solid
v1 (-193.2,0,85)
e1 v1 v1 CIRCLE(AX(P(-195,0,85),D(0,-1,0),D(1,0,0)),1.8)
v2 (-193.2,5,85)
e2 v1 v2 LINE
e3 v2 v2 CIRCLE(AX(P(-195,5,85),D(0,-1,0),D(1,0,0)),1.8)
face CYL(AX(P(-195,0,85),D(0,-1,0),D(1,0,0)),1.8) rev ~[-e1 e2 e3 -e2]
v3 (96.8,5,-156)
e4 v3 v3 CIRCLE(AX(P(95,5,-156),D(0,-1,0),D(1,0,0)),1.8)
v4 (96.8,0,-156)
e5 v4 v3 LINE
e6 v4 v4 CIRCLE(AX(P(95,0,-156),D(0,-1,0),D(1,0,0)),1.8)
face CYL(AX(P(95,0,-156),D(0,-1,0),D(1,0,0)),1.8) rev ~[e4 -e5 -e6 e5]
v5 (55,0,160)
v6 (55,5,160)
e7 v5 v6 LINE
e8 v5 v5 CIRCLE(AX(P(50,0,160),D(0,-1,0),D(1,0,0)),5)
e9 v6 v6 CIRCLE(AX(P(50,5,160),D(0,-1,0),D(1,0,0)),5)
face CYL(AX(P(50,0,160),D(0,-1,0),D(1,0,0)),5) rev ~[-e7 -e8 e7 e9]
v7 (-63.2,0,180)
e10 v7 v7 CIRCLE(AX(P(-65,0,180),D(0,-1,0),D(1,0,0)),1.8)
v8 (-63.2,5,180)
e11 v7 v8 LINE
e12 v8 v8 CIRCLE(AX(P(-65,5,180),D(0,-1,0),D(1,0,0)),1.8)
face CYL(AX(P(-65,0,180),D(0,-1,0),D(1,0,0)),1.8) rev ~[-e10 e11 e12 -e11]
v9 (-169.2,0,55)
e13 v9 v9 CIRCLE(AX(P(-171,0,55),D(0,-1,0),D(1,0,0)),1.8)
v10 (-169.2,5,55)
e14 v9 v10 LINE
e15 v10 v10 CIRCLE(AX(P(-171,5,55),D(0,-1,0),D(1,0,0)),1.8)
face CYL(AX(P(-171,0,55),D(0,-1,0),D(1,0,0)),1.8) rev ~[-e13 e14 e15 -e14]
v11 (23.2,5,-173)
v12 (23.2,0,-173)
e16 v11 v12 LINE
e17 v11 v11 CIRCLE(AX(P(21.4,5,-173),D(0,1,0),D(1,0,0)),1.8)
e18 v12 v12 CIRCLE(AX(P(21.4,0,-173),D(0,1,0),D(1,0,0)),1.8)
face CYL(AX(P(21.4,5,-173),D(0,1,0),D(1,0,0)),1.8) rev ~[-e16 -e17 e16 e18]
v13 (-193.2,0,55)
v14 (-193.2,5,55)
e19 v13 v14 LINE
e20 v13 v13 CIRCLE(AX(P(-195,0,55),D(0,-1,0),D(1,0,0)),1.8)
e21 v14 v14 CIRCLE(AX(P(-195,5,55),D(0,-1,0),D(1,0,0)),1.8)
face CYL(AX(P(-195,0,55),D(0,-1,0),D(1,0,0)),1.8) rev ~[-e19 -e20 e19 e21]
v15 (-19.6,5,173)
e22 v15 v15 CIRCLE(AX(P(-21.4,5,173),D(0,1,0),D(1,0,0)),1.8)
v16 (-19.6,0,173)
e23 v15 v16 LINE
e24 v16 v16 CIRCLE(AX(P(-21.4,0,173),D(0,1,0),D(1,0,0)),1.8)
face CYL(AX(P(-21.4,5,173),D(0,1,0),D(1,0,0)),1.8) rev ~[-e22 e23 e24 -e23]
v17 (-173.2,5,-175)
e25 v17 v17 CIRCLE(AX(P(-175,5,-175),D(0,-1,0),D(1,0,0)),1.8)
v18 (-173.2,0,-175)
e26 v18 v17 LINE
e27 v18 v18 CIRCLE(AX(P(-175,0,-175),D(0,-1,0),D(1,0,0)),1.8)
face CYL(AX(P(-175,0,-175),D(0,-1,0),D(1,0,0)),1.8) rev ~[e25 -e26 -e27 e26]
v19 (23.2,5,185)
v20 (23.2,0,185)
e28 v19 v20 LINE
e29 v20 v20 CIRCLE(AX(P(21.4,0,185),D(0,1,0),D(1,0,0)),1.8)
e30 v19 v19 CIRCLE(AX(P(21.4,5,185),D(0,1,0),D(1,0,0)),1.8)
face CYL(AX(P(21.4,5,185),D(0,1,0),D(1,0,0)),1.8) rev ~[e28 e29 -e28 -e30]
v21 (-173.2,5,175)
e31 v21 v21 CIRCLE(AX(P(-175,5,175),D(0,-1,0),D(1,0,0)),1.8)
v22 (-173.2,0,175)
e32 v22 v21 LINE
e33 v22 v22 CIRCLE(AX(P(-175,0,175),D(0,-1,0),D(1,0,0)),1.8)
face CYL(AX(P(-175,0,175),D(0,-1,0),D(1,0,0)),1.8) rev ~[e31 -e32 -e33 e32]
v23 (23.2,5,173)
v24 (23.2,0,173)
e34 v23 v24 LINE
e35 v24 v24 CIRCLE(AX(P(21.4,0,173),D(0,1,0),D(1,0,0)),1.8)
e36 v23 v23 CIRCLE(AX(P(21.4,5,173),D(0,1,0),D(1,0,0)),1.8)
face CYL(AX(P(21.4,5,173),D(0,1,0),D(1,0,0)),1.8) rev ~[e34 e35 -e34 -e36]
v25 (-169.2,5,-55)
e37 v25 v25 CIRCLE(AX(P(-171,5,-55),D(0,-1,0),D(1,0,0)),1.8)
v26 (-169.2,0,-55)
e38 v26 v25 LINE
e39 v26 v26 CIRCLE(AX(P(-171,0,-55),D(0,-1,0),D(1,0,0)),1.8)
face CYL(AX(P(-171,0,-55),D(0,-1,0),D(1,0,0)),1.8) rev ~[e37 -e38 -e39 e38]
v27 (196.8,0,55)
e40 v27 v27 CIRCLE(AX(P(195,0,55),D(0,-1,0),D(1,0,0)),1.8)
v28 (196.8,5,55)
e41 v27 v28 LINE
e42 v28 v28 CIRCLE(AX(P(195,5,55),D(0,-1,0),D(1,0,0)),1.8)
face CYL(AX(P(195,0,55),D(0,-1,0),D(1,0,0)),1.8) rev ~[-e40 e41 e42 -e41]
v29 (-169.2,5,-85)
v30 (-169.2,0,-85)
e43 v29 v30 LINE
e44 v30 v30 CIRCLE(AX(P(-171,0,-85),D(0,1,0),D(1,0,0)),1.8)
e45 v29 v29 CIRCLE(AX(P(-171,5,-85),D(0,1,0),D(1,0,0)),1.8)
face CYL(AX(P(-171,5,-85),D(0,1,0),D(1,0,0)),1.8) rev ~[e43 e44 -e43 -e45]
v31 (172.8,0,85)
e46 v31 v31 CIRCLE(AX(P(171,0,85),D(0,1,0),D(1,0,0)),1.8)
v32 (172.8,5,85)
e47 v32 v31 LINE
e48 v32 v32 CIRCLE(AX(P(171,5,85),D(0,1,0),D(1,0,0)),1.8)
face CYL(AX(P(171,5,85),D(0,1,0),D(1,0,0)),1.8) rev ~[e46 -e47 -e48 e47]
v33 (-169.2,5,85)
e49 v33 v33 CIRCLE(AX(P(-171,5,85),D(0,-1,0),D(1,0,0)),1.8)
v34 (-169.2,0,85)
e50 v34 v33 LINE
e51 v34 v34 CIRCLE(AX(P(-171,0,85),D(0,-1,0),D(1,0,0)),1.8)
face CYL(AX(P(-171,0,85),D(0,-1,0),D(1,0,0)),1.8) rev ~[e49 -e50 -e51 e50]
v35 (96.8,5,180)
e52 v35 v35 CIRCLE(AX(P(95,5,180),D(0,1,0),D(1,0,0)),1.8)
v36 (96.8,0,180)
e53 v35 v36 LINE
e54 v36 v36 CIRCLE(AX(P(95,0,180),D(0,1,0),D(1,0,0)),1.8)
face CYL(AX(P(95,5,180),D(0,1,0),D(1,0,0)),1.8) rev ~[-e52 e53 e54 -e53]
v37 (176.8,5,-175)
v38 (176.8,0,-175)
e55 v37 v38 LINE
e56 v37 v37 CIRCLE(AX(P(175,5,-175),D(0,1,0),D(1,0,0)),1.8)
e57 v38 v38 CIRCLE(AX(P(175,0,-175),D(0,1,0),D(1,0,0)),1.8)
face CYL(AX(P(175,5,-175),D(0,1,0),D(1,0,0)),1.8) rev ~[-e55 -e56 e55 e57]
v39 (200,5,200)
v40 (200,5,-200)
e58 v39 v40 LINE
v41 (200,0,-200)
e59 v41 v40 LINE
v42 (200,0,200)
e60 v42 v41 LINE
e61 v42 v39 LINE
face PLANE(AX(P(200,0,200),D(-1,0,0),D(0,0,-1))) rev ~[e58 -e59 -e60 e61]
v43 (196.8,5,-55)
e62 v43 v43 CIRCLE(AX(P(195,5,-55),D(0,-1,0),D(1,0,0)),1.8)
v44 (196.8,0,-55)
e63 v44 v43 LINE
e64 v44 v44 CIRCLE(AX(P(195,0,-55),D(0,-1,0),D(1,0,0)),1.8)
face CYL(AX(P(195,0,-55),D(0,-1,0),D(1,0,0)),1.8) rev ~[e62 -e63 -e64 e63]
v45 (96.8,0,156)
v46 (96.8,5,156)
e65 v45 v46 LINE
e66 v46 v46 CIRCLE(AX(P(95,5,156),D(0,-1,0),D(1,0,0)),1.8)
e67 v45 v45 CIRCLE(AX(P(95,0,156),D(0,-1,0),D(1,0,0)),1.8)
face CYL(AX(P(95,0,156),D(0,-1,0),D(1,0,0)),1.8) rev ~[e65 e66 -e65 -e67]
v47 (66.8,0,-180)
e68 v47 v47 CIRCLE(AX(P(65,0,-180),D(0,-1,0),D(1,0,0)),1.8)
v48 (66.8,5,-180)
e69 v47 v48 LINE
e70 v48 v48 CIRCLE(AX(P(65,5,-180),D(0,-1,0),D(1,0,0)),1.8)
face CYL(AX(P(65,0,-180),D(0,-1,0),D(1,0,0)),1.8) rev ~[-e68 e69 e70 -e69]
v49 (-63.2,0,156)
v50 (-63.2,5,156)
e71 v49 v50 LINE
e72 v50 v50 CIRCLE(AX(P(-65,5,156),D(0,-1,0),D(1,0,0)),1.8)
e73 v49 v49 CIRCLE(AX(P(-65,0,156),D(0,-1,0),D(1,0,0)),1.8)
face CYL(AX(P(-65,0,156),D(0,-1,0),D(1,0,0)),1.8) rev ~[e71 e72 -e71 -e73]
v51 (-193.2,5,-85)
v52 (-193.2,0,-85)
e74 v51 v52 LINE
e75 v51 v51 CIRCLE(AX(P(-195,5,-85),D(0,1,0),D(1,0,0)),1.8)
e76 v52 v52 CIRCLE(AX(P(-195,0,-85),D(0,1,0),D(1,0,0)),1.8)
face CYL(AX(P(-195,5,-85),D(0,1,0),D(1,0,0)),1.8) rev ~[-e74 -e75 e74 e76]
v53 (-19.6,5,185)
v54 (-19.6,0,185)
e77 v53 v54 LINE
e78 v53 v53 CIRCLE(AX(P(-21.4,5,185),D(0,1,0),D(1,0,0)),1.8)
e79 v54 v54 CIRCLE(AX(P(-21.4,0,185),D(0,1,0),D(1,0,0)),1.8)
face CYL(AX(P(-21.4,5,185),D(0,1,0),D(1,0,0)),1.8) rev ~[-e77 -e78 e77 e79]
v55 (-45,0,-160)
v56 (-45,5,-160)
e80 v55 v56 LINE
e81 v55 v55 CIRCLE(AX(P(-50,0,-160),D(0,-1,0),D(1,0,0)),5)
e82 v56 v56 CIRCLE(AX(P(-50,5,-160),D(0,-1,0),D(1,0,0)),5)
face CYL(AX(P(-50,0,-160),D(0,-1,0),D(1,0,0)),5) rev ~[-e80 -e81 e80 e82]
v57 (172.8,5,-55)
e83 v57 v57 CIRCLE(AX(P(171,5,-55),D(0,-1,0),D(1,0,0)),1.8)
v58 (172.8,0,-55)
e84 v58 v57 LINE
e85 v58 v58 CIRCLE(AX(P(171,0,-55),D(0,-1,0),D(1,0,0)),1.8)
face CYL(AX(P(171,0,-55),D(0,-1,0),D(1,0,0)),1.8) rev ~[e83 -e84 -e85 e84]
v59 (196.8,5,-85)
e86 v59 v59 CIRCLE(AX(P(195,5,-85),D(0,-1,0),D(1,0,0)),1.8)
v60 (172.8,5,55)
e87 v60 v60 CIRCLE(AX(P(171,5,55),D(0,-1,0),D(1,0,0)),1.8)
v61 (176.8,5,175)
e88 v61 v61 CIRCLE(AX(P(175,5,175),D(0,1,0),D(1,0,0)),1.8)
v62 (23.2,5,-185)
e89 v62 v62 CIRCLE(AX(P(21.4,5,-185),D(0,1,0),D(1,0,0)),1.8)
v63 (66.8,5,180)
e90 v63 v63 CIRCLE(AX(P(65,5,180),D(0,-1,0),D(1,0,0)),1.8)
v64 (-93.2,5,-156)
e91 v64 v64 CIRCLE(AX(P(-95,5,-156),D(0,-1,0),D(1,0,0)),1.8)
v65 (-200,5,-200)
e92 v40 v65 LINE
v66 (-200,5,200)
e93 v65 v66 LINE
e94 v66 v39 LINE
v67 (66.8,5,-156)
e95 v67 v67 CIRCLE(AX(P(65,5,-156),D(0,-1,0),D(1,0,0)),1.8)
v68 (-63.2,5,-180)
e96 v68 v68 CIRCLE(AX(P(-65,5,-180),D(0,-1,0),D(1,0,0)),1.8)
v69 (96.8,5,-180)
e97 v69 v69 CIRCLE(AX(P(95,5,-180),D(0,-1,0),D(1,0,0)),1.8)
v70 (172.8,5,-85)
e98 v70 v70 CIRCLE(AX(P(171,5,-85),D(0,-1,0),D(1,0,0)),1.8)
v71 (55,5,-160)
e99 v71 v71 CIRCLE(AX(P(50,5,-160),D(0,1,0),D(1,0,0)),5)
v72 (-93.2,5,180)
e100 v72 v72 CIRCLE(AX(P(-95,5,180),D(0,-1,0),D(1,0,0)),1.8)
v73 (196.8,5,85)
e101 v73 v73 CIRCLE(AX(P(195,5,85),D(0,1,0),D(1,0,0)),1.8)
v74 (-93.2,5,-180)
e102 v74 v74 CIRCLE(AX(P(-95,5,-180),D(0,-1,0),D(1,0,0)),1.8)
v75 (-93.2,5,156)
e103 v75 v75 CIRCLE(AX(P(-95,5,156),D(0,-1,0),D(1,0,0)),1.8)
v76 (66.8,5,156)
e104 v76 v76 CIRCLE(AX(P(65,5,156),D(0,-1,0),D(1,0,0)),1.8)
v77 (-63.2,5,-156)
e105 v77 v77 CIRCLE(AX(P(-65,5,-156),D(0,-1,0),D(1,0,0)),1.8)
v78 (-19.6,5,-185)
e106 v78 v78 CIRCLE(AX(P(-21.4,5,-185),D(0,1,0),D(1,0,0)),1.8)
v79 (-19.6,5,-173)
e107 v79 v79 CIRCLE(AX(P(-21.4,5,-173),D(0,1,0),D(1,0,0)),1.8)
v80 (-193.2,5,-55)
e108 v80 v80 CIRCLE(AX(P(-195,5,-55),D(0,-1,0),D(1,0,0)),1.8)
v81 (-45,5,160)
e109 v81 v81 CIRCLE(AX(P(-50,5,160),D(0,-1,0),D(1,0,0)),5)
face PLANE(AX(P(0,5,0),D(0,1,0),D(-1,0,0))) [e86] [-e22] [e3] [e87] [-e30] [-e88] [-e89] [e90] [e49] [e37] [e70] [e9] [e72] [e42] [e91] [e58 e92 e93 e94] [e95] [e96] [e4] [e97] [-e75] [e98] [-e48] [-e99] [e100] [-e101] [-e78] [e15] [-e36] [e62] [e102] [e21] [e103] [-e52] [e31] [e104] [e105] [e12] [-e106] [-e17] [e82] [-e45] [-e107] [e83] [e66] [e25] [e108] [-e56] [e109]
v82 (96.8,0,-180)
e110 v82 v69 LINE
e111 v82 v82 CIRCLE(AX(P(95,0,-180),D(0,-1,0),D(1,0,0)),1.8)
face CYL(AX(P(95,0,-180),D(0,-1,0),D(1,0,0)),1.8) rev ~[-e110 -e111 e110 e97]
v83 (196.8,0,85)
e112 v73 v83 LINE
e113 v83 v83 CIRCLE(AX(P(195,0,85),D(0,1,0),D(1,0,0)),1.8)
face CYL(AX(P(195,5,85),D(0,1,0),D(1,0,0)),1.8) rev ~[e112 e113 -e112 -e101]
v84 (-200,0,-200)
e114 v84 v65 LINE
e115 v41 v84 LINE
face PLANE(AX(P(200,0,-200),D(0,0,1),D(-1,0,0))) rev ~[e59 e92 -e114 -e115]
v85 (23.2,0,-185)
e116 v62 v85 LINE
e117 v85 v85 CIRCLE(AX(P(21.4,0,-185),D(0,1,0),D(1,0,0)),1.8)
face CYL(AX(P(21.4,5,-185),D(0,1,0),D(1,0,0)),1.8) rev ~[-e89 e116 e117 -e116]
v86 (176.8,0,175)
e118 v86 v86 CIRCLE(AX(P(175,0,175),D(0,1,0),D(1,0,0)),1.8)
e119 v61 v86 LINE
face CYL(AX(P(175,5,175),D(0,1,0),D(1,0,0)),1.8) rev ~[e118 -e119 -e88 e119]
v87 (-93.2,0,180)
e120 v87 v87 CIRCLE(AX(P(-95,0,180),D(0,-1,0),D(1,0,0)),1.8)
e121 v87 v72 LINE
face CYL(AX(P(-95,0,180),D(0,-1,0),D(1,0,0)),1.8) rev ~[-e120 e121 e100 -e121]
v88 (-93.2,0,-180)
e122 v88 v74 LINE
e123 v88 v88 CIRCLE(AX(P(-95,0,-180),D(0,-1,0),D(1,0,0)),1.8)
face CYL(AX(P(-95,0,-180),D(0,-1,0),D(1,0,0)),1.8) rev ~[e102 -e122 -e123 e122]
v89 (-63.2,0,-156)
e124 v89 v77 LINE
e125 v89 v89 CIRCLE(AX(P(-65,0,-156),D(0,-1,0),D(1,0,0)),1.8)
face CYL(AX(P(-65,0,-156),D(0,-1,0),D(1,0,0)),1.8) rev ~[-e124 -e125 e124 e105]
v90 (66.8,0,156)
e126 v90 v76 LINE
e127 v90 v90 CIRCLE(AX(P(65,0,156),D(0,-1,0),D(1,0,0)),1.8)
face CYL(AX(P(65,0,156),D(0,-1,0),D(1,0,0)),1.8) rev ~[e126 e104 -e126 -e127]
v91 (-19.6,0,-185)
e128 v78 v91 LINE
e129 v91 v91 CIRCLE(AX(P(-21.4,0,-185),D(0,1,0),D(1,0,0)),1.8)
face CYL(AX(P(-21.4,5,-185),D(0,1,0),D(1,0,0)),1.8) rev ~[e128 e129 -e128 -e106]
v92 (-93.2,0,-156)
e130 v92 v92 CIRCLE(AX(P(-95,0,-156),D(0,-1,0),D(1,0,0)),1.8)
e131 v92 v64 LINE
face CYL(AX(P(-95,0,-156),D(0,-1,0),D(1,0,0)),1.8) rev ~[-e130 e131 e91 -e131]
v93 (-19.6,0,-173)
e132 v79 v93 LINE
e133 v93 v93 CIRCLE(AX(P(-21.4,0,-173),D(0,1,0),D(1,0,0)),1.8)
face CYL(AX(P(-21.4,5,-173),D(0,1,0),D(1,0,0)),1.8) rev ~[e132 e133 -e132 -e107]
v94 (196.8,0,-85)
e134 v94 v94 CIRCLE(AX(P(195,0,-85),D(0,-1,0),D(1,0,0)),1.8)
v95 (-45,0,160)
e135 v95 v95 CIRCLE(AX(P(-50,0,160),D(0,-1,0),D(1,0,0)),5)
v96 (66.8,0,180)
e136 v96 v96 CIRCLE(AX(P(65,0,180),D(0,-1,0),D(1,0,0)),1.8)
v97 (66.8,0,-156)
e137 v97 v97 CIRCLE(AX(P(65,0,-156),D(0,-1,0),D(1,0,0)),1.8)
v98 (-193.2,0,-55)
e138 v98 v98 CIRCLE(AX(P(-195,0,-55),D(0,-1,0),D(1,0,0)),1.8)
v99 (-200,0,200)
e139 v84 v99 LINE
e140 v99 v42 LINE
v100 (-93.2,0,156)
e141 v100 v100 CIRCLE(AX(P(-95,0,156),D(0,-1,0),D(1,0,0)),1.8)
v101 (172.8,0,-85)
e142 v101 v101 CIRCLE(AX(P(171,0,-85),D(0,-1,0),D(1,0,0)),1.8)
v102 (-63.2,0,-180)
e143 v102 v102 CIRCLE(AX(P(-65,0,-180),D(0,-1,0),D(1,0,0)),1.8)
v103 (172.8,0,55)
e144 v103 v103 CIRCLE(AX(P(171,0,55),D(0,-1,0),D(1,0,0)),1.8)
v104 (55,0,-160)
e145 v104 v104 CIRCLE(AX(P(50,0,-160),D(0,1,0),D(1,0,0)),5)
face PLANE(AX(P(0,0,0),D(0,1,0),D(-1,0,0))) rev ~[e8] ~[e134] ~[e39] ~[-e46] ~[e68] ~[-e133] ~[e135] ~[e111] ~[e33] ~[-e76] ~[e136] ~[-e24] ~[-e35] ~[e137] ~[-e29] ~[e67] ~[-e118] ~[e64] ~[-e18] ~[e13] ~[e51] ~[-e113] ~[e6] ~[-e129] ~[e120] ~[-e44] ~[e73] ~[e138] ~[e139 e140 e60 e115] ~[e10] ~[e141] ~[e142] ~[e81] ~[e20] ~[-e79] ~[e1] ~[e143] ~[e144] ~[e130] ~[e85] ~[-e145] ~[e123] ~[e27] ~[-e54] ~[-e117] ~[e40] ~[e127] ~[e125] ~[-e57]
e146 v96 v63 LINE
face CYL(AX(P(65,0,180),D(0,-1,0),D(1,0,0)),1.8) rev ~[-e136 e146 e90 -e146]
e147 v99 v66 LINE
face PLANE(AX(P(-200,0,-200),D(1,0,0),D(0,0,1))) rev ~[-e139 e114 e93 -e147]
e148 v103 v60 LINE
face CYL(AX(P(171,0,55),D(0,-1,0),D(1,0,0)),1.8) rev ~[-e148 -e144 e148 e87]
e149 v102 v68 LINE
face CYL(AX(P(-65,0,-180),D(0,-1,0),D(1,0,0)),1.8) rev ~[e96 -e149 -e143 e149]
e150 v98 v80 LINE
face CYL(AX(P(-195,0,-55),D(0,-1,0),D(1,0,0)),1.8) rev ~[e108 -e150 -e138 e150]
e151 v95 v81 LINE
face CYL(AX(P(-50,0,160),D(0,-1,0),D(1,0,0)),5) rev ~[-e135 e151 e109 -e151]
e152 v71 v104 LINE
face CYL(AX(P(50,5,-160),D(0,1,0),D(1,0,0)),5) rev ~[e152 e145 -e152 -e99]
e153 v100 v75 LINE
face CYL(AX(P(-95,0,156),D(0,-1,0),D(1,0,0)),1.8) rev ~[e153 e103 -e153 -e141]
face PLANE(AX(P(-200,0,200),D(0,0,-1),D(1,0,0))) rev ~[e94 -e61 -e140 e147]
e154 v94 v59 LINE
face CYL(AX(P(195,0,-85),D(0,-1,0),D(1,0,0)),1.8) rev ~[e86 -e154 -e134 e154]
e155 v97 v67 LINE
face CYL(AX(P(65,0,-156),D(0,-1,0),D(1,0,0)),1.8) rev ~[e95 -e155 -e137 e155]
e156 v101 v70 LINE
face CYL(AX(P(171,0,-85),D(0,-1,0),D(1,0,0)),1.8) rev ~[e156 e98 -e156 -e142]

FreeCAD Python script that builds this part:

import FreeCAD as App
import Part
import Sketcher

doc = App.newDocument("Part")
body = doc.addObject("PartDesign::Body", "Body")

# Sketch on XZ plane
sketch1 = body.newObject("Sketcher::SketchObject", "Sketch")
sketch1.AttachmentSupport = (doc.getObject("XZ_Plane"), [""])
sketch1.MapMode = "FlatFace"
sketch1.addGeometry([
    Part.LineSegment(App.Vector(-200, -200, 0), App.Vector(-200, 200, 0)),
    Part.LineSegment(App.Vector(-200, 200, 0), App.Vector(200, 200, 0)),
    Part.LineSegment(App.Vector(200, 200, 0), App.Vector(200, -200, 0)),
    Part.LineSegment(App.Vector(200, -200, 0), App.Vector(-200, -200, 0)),
], False)
sketch1.addConstraint([
    Sketcher.Constraint("Coincident", 0, 2, 1, 1),
    Sketcher.Constraint("Coincident", 1, 2, 2, 1),
    Sketcher.Constraint("Coincident", 2, 2, 3, 1),
    Sketcher.Constraint("Coincident", 3, 2, 0, 1),
    Sketcher.Constraint("Vertical", 0),
    Sketcher.Constraint("Horizontal", 1),
    Sketcher.Constraint("Vertical", 2),
    Sketcher.Constraint("Horizontal", 3),
    Sketcher.Constraint("Symmetric", 0, 2, 2, 2, -1, 1),
    Sketcher.Constraint("Equal", 3, 0),
    Sketcher.Constraint("DistanceX", 1, 1, 1, 2, 400.0),
])
pad1 = body.newObject("PartDesign::Pad", "Pad")
pad1.Profile = sketch1
pad1.Length = 5
pad1.Reversed = True

# Sketch on XZ plane
sketch2 = body.newObject("Sketcher::SketchObject", "Sketch001")
sketch2.AttachmentSupport = (doc.getObject("XZ_Plane"), [""])
sketch2.MapMode = "FlatFace"
sketch2.AttachmentOffset = App.Placement(App.Vector(0, 0, -5), App.Rotation())
sketch2.addGeometry(Part.Circle(App.Vector(175, -175, 0), App.Vector(0, 0, 1), 1.8), False)
sketch2.addConstraint([
    Sketcher.Constraint("Diameter", 0, 3.6),
    Sketcher.Constraint("DistanceX", -1, 1, 0, 3, 175.0),
    Sketcher.Constraint("DistanceY", 0, 3, -1, 1, 175.0),
])
pocket1 = body.newObject("PartDesign::Pocket", "Pocket")
pocket1.Profile = sketch2
pocket1.Type = "ThroughAll"
pocket1.Reversed = True

# Sketch on XZ plane
sketch3 = body.newObject("Sketcher::SketchObject", "Sketch002")
sketch3.AttachmentSupport = (doc.getObject("XZ_Plane"), [""])
sketch3.MapMode = "FlatFace"
sketch3.AttachmentOffset = App.Placement(App.Vector(0, 0, -5), App.Rotation())
sketch3.addGeometry(Part.Circle(App.Vector(175, 175, 0), App.Vector(0, 0, 1), 1.8), False)
sketch3.addConstraint([
    Sketcher.Constraint("Diameter", 0, 3.6),
    Sketcher.Constraint("DistanceX", -1, 1, 0, 3, 175.0),
    Sketcher.Constraint("DistanceY", -1, 1, 0, 3, 175.0),
])
pocket2 = body.newObject("PartDesign::Pocket", "Pocket001")
pocket2.Profile = sketch3
pocket2.Type = "ThroughAll"
pocket2.Reversed = True

# Sketch on XZ plane
sketch4 = body.newObject("Sketcher::SketchObject", "Sketch003")
sketch4.AttachmentSupport = (doc.getObject("XZ_Plane"), [""])
sketch4.MapMode = "FlatFace"
sketch4.addGeometry(Part.Circle(App.Vector(-175, 175, 0), App.Vector(0, 0, 1), 1.8), False)
sketch4.addConstraint([
    Sketcher.Constraint("Diameter", 0, 3.6),
    Sketcher.Constraint("DistanceX", 0, 3, -1, 1, 175.0),
    Sketcher.Constraint("DistanceY", -1, 1, 0, 3, 175.0),
])
pocket3 = body.newObject("PartDesign::Pocket", "Pocket002")
pocket3.Profile = sketch4
pocket3.Type = "ThroughAll"

# Sketch on XZ plane
sketch5 = body.newObject("Sketcher::SketchObject", "Sketch004")
sketch5.AttachmentSupport = (doc.getObject("XZ_Plane"), [""])
sketch5.MapMode = "FlatFace"
sketch5.addGeometry(Part.Circle(App.Vector(-175, -175, 0), App.Vector(0, 0, 1), 1.8), False)
sketch5.addConstraint([
    Sketcher.Constraint("Diameter", 0, 3.6),
    Sketcher.Constraint("DistanceX", 0, 3, -1, 1, 175.0),
    Sketcher.Constraint("DistanceY", 0, 3, -1, 1, 175.0),
])
pocket4 = body.newObject("PartDesign::Pocket", "Pocket003")
pocket4.Profile = sketch5
pocket4.Type = "ThroughAll"

# Sketch on XZ plane
sketch6 = body.newObject("Sketcher::SketchObject", "Sketch005")
sketch6.AttachmentSupport = (doc.getObject("XZ_Plane"), [""])
sketch6.MapMode = "FlatFace"
sketch6.AttachmentOffset = App.Placement(App.Vector(0, 0, -5), App.Rotation())
sketch6.addGeometry(Part.Circle(App.Vector(-21.4, -185, 0), App.Vector(0, 0, 1), 1.8), False)
sketch6.addConstraint([
    Sketcher.Constraint("Diameter", 0, 3.6),
    Sketcher.Constraint("DistanceY", 0, 3, -1, 1, 185.0),
    Sketcher.Constraint("DistanceX", 0, 3, -1, 1, 21.4),
])
pocket5 = body.newObject("PartDesign::Pocket", "Pocket004")
pocket5.Profile = sketch6
pocket5.Type = "ThroughAll"
pocket5.Reversed = True

# Sketch on XZ plane
sketch7 = body.newObject("Sketcher::SketchObject", "Sketch006")
sketch7.AttachmentSupport = (doc.getObject("XZ_Plane"), [""])
sketch7.MapMode = "FlatFace"
sketch7.AttachmentOffset = App.Placement(App.Vector(0, 0, -5), App.Rotation())
sketch7.addGeometry(Part.Circle(App.Vector(21.4, -185, 0), App.Vector(0, 0, 1), 1.8), False)
sketch7.addConstraint([
    Sketcher.Constraint("Diameter", 0, 3.6),
    Sketcher.Constraint("DistanceY", 0, 3, -1, 1, 185.0),
    Sketcher.Constraint("DistanceX", -1, 1, 0, 3, 21.4),
])
pocket6 = body.newObject("PartDesign::Pocket", "Pocket005")
pocket6.Profile = sketch7
pocket6.Type = "ThroughAll"
pocket6.Reversed = True

# Sketch on XZ plane
sketch8 = body.newObject("Sketcher::SketchObject", "Sketch007")
sketch8.AttachmentSupport = (doc.getObject("XZ_Plane"), [""])
sketch8.MapMode = "FlatFace"
sketch8.AttachmentOffset = App.Placement(App.Vector(0, 0, -5), App.Rotation())
sketch8.addGeometry(Part.Circle(App.Vector(-21.4, -173, 0), App.Vector(0, 0, 1), 1.8), False)
sketch8.addConstraint([
    Sketcher.Constraint("Diameter", 0, 3.6),
    Sketcher.Constraint("DistanceY", 0, 3, -1, 1, 173.0),
    Sketcher.Constraint("DistanceX", 0, 3, -1, 1, 21.4),
])
pocket7 = body.newObject("PartDesign::Pocket", "Pocket006")
pocket7.Profile = sketch8
pocket7.Type = "ThroughAll"
pocket7.Reversed = True

# Sketch on XZ plane
sketch9 = body.newObject("Sketcher::SketchObject", "Sketch008")
sketch9.AttachmentSupport = (doc.getObject("XZ_Plane"), [""])
sketch9.MapMode = "FlatFace"
sketch9.AttachmentOffset = App.Placement(App.Vector(0, 0, -5), App.Rotation())
sketch9.addGeometry(Part.Circle(App.Vector(21.4, -173, 0), App.Vector(0, 0, 1), 1.8), False)
sketch9.addConstraint([
    Sketcher.Constraint("Diameter", 0, 3.6),
    Sketcher.Constraint("DistanceY", 0, 3, -1, 1, 173.0),
    Sketcher.Constraint("DistanceX", -1, 1, 0, 3, 21.4),
])
pocket8 = body.newObject("PartDesign::Pocket", "Pocket007")
pocket8.Profile = sketch9
pocket8.Type = "ThroughAll"
pocket8.Reversed = True

# Sketch on XZ plane
sketch10 = body.newObject("Sketcher::SketchObject", "Sketch009")
sketch10.AttachmentSupport = (doc.getObject("XZ_Plane"), [""])
sketch10.MapMode = "FlatFace"
sketch10.AttachmentOffset = App.Placement(App.Vector(0, 0, -5), App.Rotation())
sketch10.addGeometry(Part.Circle(App.Vector(21.4, 173, 0), App.Vector(0, 0, 1), 1.8), False)
sketch10.addConstraint([
    Sketcher.Constraint("Diameter", 0, 3.6),
    Sketcher.Constraint("DistanceY", -1, 1, 0, 3, 173.0),
    Sketcher.Constraint("DistanceX", -1, 1, 0, 3, 21.4),
])
pocket9 = body.newObject("PartDesign::Pocket", "Pocket008")
pocket9.Profile = sketch10
pocket9.Type = "ThroughAll"
pocket9.Reversed = True

# Sketch on XZ plane
sketch11 = body.newObject("Sketcher::SketchObject", "Sketch010")
sketch11.AttachmentSupport = (doc.getObject("XZ_Plane"), [""])
sketch11.MapMode = "FlatFace"
sketch11.AttachmentOffset = App.Placement(App.Vector(0, 0, -5), App.Rotation())
sketch11.addGeometry(Part.Circle(App.Vector(21.4, 185, 0), App.Vector(0, 0, 1), 1.8), False)
sketch11.addConstraint([
    Sketcher.Constraint("Diameter", 0, 3.6),
    Sketcher.Constraint("DistanceY", -1, 1, 0, 3, 185.0),
    Sketcher.Constraint("DistanceX", -1, 1, 0, 3, 21.4),
])
pocket10 = body.newObject("PartDesign::Pocket", "Pocket009")
pocket10.Profile = sketch11
pocket10.Type = "ThroughAll"
pocket10.Reversed = True

# Sketch on XZ plane
sketch12 = body.newObject("Sketcher::SketchObject", "Sketch011")
sketch12.AttachmentSupport = (doc.getObject("XZ_Plane"), [""])
sketch12.MapMode = "FlatFace"
sketch12.AttachmentOffset = App.Placement(App.Vector(0, 0, -5), App.Rotation())
sketch12.addGeometry(Part.Circle(App.Vector(-21.4, 185, 0), App.Vector(0, 0, 1), 1.8), False)
sketch12.addConstraint([
    Sketcher.Constraint("Diameter", 0, 3.6),
    Sketcher.Constraint("DistanceY", -1, 1, 0, 3, 185.0),
    Sketcher.Constraint("DistanceX", 0, 3, -1, 1, 21.4),
])
pocket11 = body.newObject("PartDesign::Pocket", "Pocket010")
pocket11.Profile = sketch12
pocket11.Type = "ThroughAll"
pocket11.Reversed = True

# Sketch on XZ plane
sketch13 = body.newObject("Sketcher::SketchObject", "Sketch012")
sketch13.AttachmentSupport = (doc.getObject("XZ_Plane"), [""])
sketch13.MapMode = "FlatFace"
sketch13.AttachmentOffset = App.Placement(App.Vector(0, 0, -5), App.Rotation())
sketch13.addGeometry(Part.Circle(App.Vector(-21.4, 173, 0), App.Vector(0, 0, 1), 1.8), False)
sketch13.addConstraint([
    Sketcher.Constraint("Diameter", 0, 3.6),
    Sketcher.Constraint("DistanceY", -1, 1, 0, 3, 173.0),
    Sketcher.Constraint("DistanceX", 0, 3, -1, 1, 21.4),
])
pocket12 = body.newObject("PartDesign::Pocket", "Pocket011")
pocket12.Profile = sketch13
pocket12.Type = "ThroughAll"
pocket12.Reversed = True

# Sketch on XZ plane
sketch14 = body.newObject("Sketcher::SketchObject", "Sketch013")
sketch14.AttachmentSupport = (doc.getObject("XZ_Plane"), [""])
sketch14.MapMode = "FlatFace"
sketch14.AttachmentOffset = App.Placement(App.Vector(0, 0, -5), App.Rotation())
sketch14.addGeometry(Part.Circle(App.Vector(50, -160, 0), App.Vector(0, 0, 1), 5), False)
sketch14.addConstraint([
    Sketcher.Constraint("Diameter", 0, 10.0),
    Sketcher.Constraint("DistanceX", -1, 1, 0, 3, 50.0),
    Sketcher.Constraint("DistanceY", 0, 3, -1, 1, 160.0),
])
pocket13 = body.newObject("PartDesign::Pocket", "Pocket012")
pocket13.Profile = sketch14
pocket13.Type = "ThroughAll"
pocket13.Reversed = True

# Sketch on XZ plane
sketch15 = body.newObject("Sketcher::SketchObject", "Sketch014")
sketch15.AttachmentSupport = (doc.getObject("XZ_Plane"), [""])
sketch15.MapMode = "FlatFace"
sketch15.addGeometry(Part.Circle(App.Vector(-50, 160, 0), App.Vector(0, 0, 1), 5), False)
sketch15.addConstraint([
    Sketcher.Constraint("Diameter", 0, 10.0),
    Sketcher.Constraint("DistanceX", 0, 3, -1, 1, 50.0),
    Sketcher.Constraint("DistanceY", -1, 1, 0, 3, 160.0),
])
pocket14 = body.newObject("PartDesign::Pocket", "Pocket013")
pocket14.Profile = sketch15
pocket14.Type = "ThroughAll"

# Sketch on XZ plane
sketch16 = body.newObject("Sketcher::SketchObject", "Sketch015")
sketch16.AttachmentSupport = (doc.getObject("XZ_Plane"), [""])
sketch16.MapMode = "FlatFace"
sketch16.addGeometry(Part.Circle(App.Vector(-50, -160, 0), App.Vector(0, 0, 1), 5), False)
sketch16.addConstraint([
    Sketcher.Constraint("Diameter", 0, 10.0),
    Sketcher.Constraint("DistanceX", 0, 3, -1, 1, 50.0),
    Sketcher.Constraint("DistanceY", 0, 3, -1, 1, 160.0),
])
pocket15 = body.newObject("PartDesign::Pocket", "Pocket014")
pocket15.Profile = sketch16
pocket15.Type = "ThroughAll"

# Sketch on XZ plane
sketch17 = body.newObject("Sketcher::SketchObject", "Sketch016")
sketch17.AttachmentSupport = (doc.getObject("XZ_Plane"), [""])
sketch17.MapMode = "FlatFace"
sketch17.addGeometry(Part.Circle(App.Vector(50, 160, 0), App.Vector(0, 0, 1), 5), False)
sketch17.addConstraint([
    Sketcher.Constraint("Diameter", 0, 10.0),
    Sketcher.Constraint("DistanceX", -1, 1, 0, 3, 50.0),
    Sketcher.Constraint("DistanceY", -1, 1, 0, 3, 160.0),
])
pocket16 = body.newObject("PartDesign::Pocket", "Pocket015")
pocket16.Profile = sketch17
pocket16.Type = "ThroughAll"

# Sketch on XZ plane
sketch18 = body.newObject("Sketcher::SketchObject", "Sketch017")
sketch18.AttachmentSupport = (doc.getObject("XZ_Plane"), [""])
sketch18.MapMode = "FlatFace"
sketch18.AttachmentOffset = App.Placement(App.Vector(0, 0, -5), App.Rotation())
sketch18.addGeometry(Part.Circle(App.Vector(195, 85, 0), App.Vector(0, 0, 1), 1.8), False)
sketch18.addConstraint([
    Sketcher.Constraint("Diameter", 0, 3.6),
    Sketcher.Constraint("DistanceX", -1, 1, 0, 3, 195.0),
    Sketcher.Constraint("DistanceY", -1, 1, 0, 3, 85.0),
])
pocket17 = body.newObject("PartDesign::Pocket", "Pocket016")
pocket17.Profile = sketch18
pocket17.Type = "ThroughAll"
pocket17.Reversed = True

# Sketch on XZ plane
sketch19 = body.newObject("Sketcher::SketchObject", "Sketch018")
sketch19.AttachmentSupport = (doc.getObject("XZ_Plane"), [""])
sketch19.MapMode = "FlatFace"
sketch19.AttachmentOffset = App.Placement(App.Vector(0, 0, -5), App.Rotation())
sketch19.addGeometry(Part.Circle(App.Vector(171, 85, 0), App.Vector(0, 0, 1), 1.8), False)
sketch19.addConstraint([
    Sketcher.Constraint("Diameter", 0, 3.6),
    Sketcher.Constraint("DistanceX", -1, 1, 0, 3, 171.0),
    Sketcher.Constraint("DistanceY", -1, 1, 0, 3, 85.0),
])
pocket18 = body.newObject("PartDesign::Pocket", "Pocket017")
pocket18.Profile = sketch19
pocket18.Type = "ThroughAll"
pocket18.Reversed = True

# Sketch on XZ plane
sketch20 = body.newObject("Sketcher::SketchObject", "Sketch019")
sketch20.AttachmentSupport = (doc.getObject("XZ_Plane"), [""])
sketch20.MapMode = "FlatFace"
sketch20.AttachmentOffset = App.Placement(App.Vector(0, 0, -5), App.Rotation())
sketch20.addGeometry(Part.Circle(App.Vector(-195, -85, 0), App.Vector(0, 0, 1), 1.8), False)
sketch20.addConstraint([
    Sketcher.Constraint("Diameter", 0, 3.6),
    Sketcher.Constraint("DistanceX", 0, 3, -1, 1, 195.0),
    Sketcher.Constraint("DistanceY", 0, 3, -1, 1, 85.0),
])
pocket19 = body.newObject("PartDesign::Pocket", "Pocket018")
pocket19.Profile = sketch20
pocket19.Type = "ThroughAll"
pocket19.Reversed = True

# Sketch on XZ plane
sketch21 = body.newObject("Sketcher::SketchObject", "Sketch020")
sketch21.AttachmentSupport = (doc.getObject("XZ_Plane"), [""])
sketch21.MapMode = "FlatFace"
sketch21.AttachmentOffset = App.Placement(App.Vector(0, 0, -5), App.Rotation())
sketch21.addGeometry(Part.Circle(App.Vector(-171, -85, 0), App.Vector(0, 0, 1), 1.8), False)
sketch21.addConstraint([
    Sketcher.Constraint("Diameter", 0, 3.6),
    Sketcher.Constraint("DistanceX", 0, 3, -1, 1, 171.0),
    Sketcher.Constraint("DistanceY", 0, 3, -1, 1, 85.0),
])
pocket20 = body.newObject("PartDesign::Pocket", "Pocket019")
pocket20.Profile = sketch21
pocket20.Type = "ThroughAll"
pocket20.Reversed = True

# Sketch on XZ plane
sketch22 = body.newObject("Sketcher::SketchObject", "Sketch021")
sketch22.AttachmentSupport = (doc.getObject("XZ_Plane"), [""])
sketch22.MapMode = "FlatFace"
sketch22.addGeometry(Part.Circle(App.Vector(171, 55, 0), App.Vector(0, 0, 1), 1.8), False)
sketch22.addConstraint([
    Sketcher.Constraint("Diameter", 0, 3.6),
    Sketcher.Constraint("DistanceX", -1, 1, 0, 3, 171.0),
    Sketcher.Constraint("DistanceY", -1, 1, 0, 3, 55.0),
])
pocket21 = body.newObject("PartDesign::Pocket", "Pocket020")
pocket21.Profile = sketch22
pocket21.Type = "ThroughAll"

# Sketch on XZ plane
sketch23 = body.newObject("Sketcher::SketchObject", "Sketch022")
sketch23.AttachmentSupport = (doc.getObject("XZ_Plane"), [""])
sketch23.MapMode = "FlatFace"
sketch23.addGeometry(Part.Circle(App.Vector(195, 55, 0), App.Vector(0, 0, 1), 1.8), False)
sketch23.addConstraint([
    Sketcher.Constraint("Diameter", 0, 3.6),
    Sketcher.Constraint("DistanceX", -1, 1, 0, 3, 195.0),
    Sketcher.Constraint("DistanceY", -1, 1, 0, 3, 55.0),
])
pocket22 = body.newObject("PartDesign::Pocket", "Pocket021")
pocket22.Profile = sketch23
pocket22.Type = "ThroughAll"

# Sketch on XZ plane
sketch24 = body.newObject("Sketcher::SketchObject", "Sketch023")
sketch24.AttachmentSupport = (doc.getObject("XZ_Plane"), [""])
sketch24.MapMode = "FlatFace"
sketch24.addGeometry(Part.Circle(App.Vector(-195, -55, 0), App.Vector(0, 0, 1), 1.8), False)
sketch24.addConstraint([
    Sketcher.Constraint("Diameter", 0, 3.6),
    Sketcher.Constraint("DistanceX", 0, 3, -1, 1, 195.0),
    Sketcher.Constraint("DistanceY", 0, 3, -1, 1, 55.0),
])
pocket23 = body.newObject("PartDesign::Pocket", "Pocket022")
pocket23.Profile = sketch24
pocket23.Type = "ThroughAll"

# Sketch on XZ plane
sketch25 = body.newObject("Sketcher::SketchObject", "Sketch024")
sketch25.AttachmentSupport = (doc.getObject("XZ_Plane"), [""])
sketch25.MapMode = "FlatFace"
sketch25.addGeometry(Part.Circle(App.Vector(-171, 55, 0), App.Vector(0, 0, 1), 1.8), False)
sketch25.addConstraint([
    Sketcher.Constraint("Diameter", 0, 3.6),
    Sketcher.Constraint("DistanceX", 0, 3, -1, 1, 171.0),
    Sketcher.Constraint("DistanceY", -1, 1, 0, 3, 55.0),
])
pocket24 = body.newObject("PartDesign::Pocket", "Pocket023")
pocket24.Profile = sketch25
pocket24.Type = "ThroughAll"

# Sketch on XZ plane
sketch26 = body.newObject("Sketcher::SketchObject", "Sketch025")
sketch26.AttachmentSupport = (doc.getObject("XZ_Plane"), [""])
sketch26.MapMode = "FlatFace"
sketch26.addGeometry(Part.Circle(App.Vector(-171, -55, 0), App.Vector(0, 0, 1), 1.8), False)
sketch26.addConstraint([
    Sketcher.Constraint("Diameter", 0, 3.6),
    Sketcher.Constraint("DistanceX", 0, 3, -1, 1, 171.0),
    Sketcher.Constraint("DistanceY", 0, 3, -1, 1, 55.0),
])
pocket25 = body.newObject("PartDesign::Pocket", "Pocket024")
pocket25.Profile = sketch26
pocket25.Type = "ThroughAll"

# Sketch on XZ plane
sketch27 = body.newObject("Sketcher::SketchObject", "Sketch026")
sketch27.AttachmentSupport = (doc.getObject("XZ_Plane"), [""])
sketch27.MapMode = "FlatFace"
sketch27.addGeometry(Part.Circle(App.Vector(-195, 55, 0), App.Vector(0, 0, 1), 1.8), False)
sketch27.addConstraint([
    Sketcher.Constraint("Diameter", 0, 3.6),
    Sketcher.Constraint("DistanceX", 0, 3, -1, 1, 195.0),
    Sketcher.Constraint("DistanceY", -1, 1, 0, 3, 55.0),
])
pocket26 = body.newObject("PartDesign::Pocket", "Pocket025")
pocket26.Profile = sketch27
pocket26.Type = "ThroughAll"

# Sketch on XZ plane
sketch28 = body.newObject("Sketcher::SketchObject", "Sketch027")
sketch28.AttachmentSupport = (doc.getObject("XZ_Plane"), [""])
sketch28.MapMode = "FlatFace"
sketch28.addGeometry(Part.Circle(App.Vector(-171, 85, 0), App.Vector(0, 0, 1), 1.8), False)
sketch28.addConstraint([
    Sketcher.Constraint("Diameter", 0, 3.6),
    Sketcher.Constraint("DistanceX", 0, 3, -1, 1, 171.0),
    Sketcher.Constraint("DistanceY", -1, 1, 0, 3, 85.0),
])
pocket27 = body.newObject("PartDesign::Pocket", "Pocket026")
pocket27.Profile = sketch28
pocket27.Type = "ThroughAll"

# Sketch on XZ plane
sketch29 = body.newObject("Sketcher::SketchObject", "Sketch028")
sketch29.AttachmentSupport = (doc.getObject("XZ_Plane"), [""])
sketch29.MapMode = "FlatFace"
sketch29.addGeometry(Part.Circle(App.Vector(-195, 85, 0), App.Vector(0, 0, 1), 1.8), False)
sketch29.addConstraint([
    Sketcher.Constraint("Diameter", 0, 3.6),
    Sketcher.Constraint("DistanceX", 0, 3, -1, 1, 195.0),
    Sketcher.Constraint("DistanceY", -1, 1, 0, 3, 85.0),
])
pocket28 = body.newObject("PartDesign::Pocket", "Pocket027")
pocket28.Profile = sketch29
pocket28.Type = "ThroughAll"

# Sketch on XZ plane
sketch30 = body.newObject("Sketcher::SketchObject", "Sketch029")
sketch30.AttachmentSupport = (doc.getObject("XZ_Plane"), [""])
sketch30.MapMode = "FlatFace"
sketch30.addGeometry(Part.Circle(App.Vector(195, -55, 0), App.Vector(0, 0, 1), 1.8), False)
sketch30.addConstraint([
    Sketcher.Constraint("Diameter", 0, 3.6),
    Sketcher.Constraint("DistanceX", -1, 1, 0, 3, 195.0),
    Sketcher.Constraint("DistanceY", 0, 3, -1, 1, 55.0),
])
pocket29 = body.newObject("PartDesign::Pocket", "Pocket028")
pocket29.Profile = sketch30
pocket29.Type = "ThroughAll"

# Sketch on XZ plane
sketch31 = body.newObject("Sketcher::SketchObject", "Sketch030")
sketch31.AttachmentSupport = (doc.getObject("XZ_Plane"), [""])
sketch31.MapMode = "FlatFace"
sketch31.addGeometry(Part.Circle(App.Vector(171, -55, 0), App.Vector(0, 0, 1), 1.8), False)
sketch31.addConstraint([
    Sketcher.Constraint("Diameter", 0, 3.6),
    Sketcher.Constraint("DistanceX", -1, 1, 0, 3, 171.0),
    Sketcher.Constraint("DistanceY", 0, 3, -1, 1, 55.0),
])
pocket30 = body.newObject("PartDesign::Pocket", "Pocket029")
pocket30.Profile = sketch31
pocket30.Type = "ThroughAll"

# Sketch on XZ plane
sketch32 = body.newObject("Sketcher::SketchObject", "Sketch031")
sketch32.AttachmentSupport = (doc.getObject("XZ_Plane"), [""])
sketch32.MapMode = "FlatFace"
sketch32.addGeometry(Part.Circle(App.Vector(171, -85, 0), App.Vector(0, 0, 1), 1.8), False)
sketch32.addConstraint([
    Sketcher.Constraint("Diameter", 0, 3.6),
    Sketcher.Constraint("DistanceX", -1, 1, 0, 3, 171.0),
    Sketcher.Constraint("DistanceY", 0, 3, -1, 1, 85.0),
])
pocket31 = body.newObject("PartDesign::Pocket", "Pocket030")
pocket31.Profile = sketch32
pocket31.Type = "ThroughAll"

# Sketch on XZ plane
sketch33 = body.newObject("Sketcher::SketchObject", "Sketch032")
sketch33.AttachmentSupport = (doc.getObject("XZ_Plane"), [""])
sketch33.MapMode = "FlatFace"
sketch33.addGeometry(Part.Circle(App.Vector(195, -85, 0), App.Vector(0, 0, 1), 1.8), False)
sketch33.addConstraint([
    Sketcher.Constraint("Diameter", 0, 3.6),
    Sketcher.Constraint("DistanceX", -1, 1, 0, 3, 195.0),
    Sketcher.Constraint("DistanceY", 0, 3, -1, 1, 85.0),
])
pocket32 = body.newObject("PartDesign::Pocket", "Pocket031")
pocket32.Profile = sketch33
pocket32.Type = "ThroughAll"

# Sketch on XZ plane
sketch34 = body.newObject("Sketcher::SketchObject", "Sketch033")
sketch34.AttachmentSupport = (doc.getObject("XZ_Plane"), [""])
sketch34.MapMode = "FlatFace"
sketch34.addGeometry(Part.Circle(App.Vector(65, 156, 0), App.Vector(0, 0, 1), 1.8), False)
sketch34.addConstraint([
    Sketcher.Constraint("Diameter", 0, 3.6),
    Sketcher.Constraint("DistanceX", -1, 1, 0, 3, 65.0),
    Sketcher.Constraint("DistanceY", -1, 1, 0, 3, 156.0),
])
pocket33 = body.newObject("PartDesign::Pocket", "Pocket032")
pocket33.Profile = sketch34
pocket33.Type = "ThroughAll"

# Sketch on XZ plane
sketch35 = body.newObject("Sketcher::SketchObject", "Sketch034")
sketch35.AttachmentSupport = (doc.getObject("XZ_Plane"), [""])
sketch35.MapMode = "FlatFace"
sketch35.addGeometry(Part.Circle(App.Vector(95, 156, 0), App.Vector(0, 0, 1), 1.8), False)
sketch35.addConstraint([
    Sketcher.Constraint("Diameter", 0, 3.6),
    Sketcher.Constraint("DistanceX", -1, 1, 0, 3, 95.0),
    Sketcher.Constraint("DistanceY", -1, 1, 0, 3, 156.0),
])
pocket34 = body.newObject("PartDesign::Pocket", "Pocket033")
pocket34.Profile = sketch35
pocket34.Type = "ThroughAll"

# Sketch on XZ plane
sketch36 = body.newObject("Sketcher::SketchObject", "Sketch035")
sketch36.AttachmentSupport = (doc.getObject("XZ_Plane"), [""])
sketch36.MapMode = "FlatFace"
sketch36.addGeometry(Part.Circle(App.Vector(65, 180, 0), App.Vector(0, 0, 1), 1.8), False)
sketch36.addConstraint([
    Sketcher.Constraint("Diameter", 0, 3.6),
    Sketcher.Constraint("DistanceX", -1, 1, 0, 3, 65.0),
    Sketcher.Constraint("DistanceY", -1, 1, 0, 3, 180.0),
])
pocket35 = body.newObject("PartDesign::Pocket", "Pocket034")
pocket35.Profile = sketch36
pocket35.Type = "ThroughAll"

# Sketch on XZ plane
sketch37 = body.newObject("Sketcher::SketchObject", "Sketch036")
sketch37.AttachmentSupport = (doc.getObject("XZ_Plane"), [""])
sketch37.MapMode = "FlatFace"
sketch37.AttachmentOffset = App.Placement(App.Vector(0, 0, -5), App.Rotation())
sketch37.addGeometry(Part.Circle(App.Vector(95, 180, 0), App.Vector(0, 0, 1), 1.8), False)
sketch37.addConstraint([
    Sketcher.Constraint("Diameter", 0, 3.6),
    Sketcher.Constraint("DistanceX", -1, 1, 0, 3, 95.0),
    Sketcher.Constraint("DistanceY", -1, 1, 0, 3, 180.0),
])
pocket36 = body.newObject("PartDesign::Pocket", "Pocket035")
pocket36.Profile = sketch37
pocket36.Type = "ThroughAll"
pocket36.Reversed = True

# Sketch on XZ plane
sketch38 = body.newObject("Sketcher::SketchObject", "Sketch037")
sketch38.AttachmentSupport = (doc.getObject("XZ_Plane"), [""])
sketch38.MapMode = "FlatFace"
sketch38.addGeometry(Part.Circle(App.Vector(65, -156, 0), App.Vector(0, 0, 1), 1.8), False)
sketch38.addConstraint([
    Sketcher.Constraint("Diameter", 0, 3.6),
    Sketcher.Constraint("DistanceX", -1, 1, 0, 3, 65.0),
    Sketcher.Constraint("DistanceY", 0, 3, -1, 1, 156.0),
])
pocket37 = body.newObject("PartDesign::Pocket", "Pocket036")
pocket37.Profile = sketch38
pocket37.Type = "ThroughAll"

# Sketch on XZ plane
sketch39 = body.newObject("Sketcher::SketchObject", "Sketch038")
sketch39.AttachmentSupport = (doc.getObject("XZ_Plane"), [""])
sketch39.MapMode = "FlatFace"
sketch39.addGeometry(Part.Circle(App.Vector(95, -156, 0), App.Vector(0, 0, 1), 1.8), False)
sketch39.addConstraint([
    Sketcher.Constraint("Diameter", 0, 3.6),
    Sketcher.Constraint("DistanceX", -1, 1, 0, 3, 95.0),
    Sketcher.Constraint("DistanceY", 0, 3, -1, 1, 156.0),
])
pocket38 = body.newObject("PartDesign::Pocket", "Pocket037")
pocket38.Profile = sketch39
pocket38.Type = "ThroughAll"

# Sketch on XZ plane
sketch40 = body.newObject("Sketcher::SketchObject", "Sketch039")
sketch40.AttachmentSupport = (doc.getObject("XZ_Plane"), [""])
sketch40.MapMode = "FlatFace"
sketch40.addGeometry(Part.Circle(App.Vector(65, -180, 0), App.Vector(0, 0, 1), 1.8), False)
sketch40.addConstraint([
    Sketcher.Constraint("Diameter", 0, 3.6),
    Sketcher.Constraint("DistanceX", -1, 1, 0, 3, 65.0),
    Sketcher.Constraint("DistanceY", 0, 3, -1, 1, 180.0),
])
pocket39 = body.newObject("PartDesign::Pocket", "Pocket038")
pocket39.Profile = sketch40
pocket39.Type = "ThroughAll"

# Sketch on XZ plane
sketch41 = body.newObject("Sketcher::SketchObject", "Sketch040")
sketch41.AttachmentSupport = (doc.getObject("XZ_Plane"), [""])
sketch41.MapMode = "FlatFace"
sketch41.addGeometry(Part.Circle(App.Vector(95, -180, 0), App.Vector(0, 0, 1), 1.8), False)
sketch41.addConstraint([
    Sketcher.Constraint("Diameter", 0, 3.6),
    Sketcher.Constraint("DistanceX", -1, 1, 0, 3, 95.0),
    Sketcher.Constraint("DistanceY", 0, 3, -1, 1, 180.0),
])
pocket40 = body.newObject("PartDesign::Pocket", "Pocket039")
pocket40.Profile = sketch41
pocket40.Type = "ThroughAll"

# Sketch on XZ plane
sketch42 = body.newObject("Sketcher::SketchObject", "Sketch041")
sketch42.AttachmentSupport = (doc.getObject("XZ_Plane"), [""])
sketch42.MapMode = "FlatFace"
sketch42.addGeometry(Part.Circle(App.Vector(-95, 156, 0), App.Vector(0, 0, 1), 1.8), False)
sketch42.addConstraint([
    Sketcher.Constraint("Diameter", 0, 3.6),
    Sketcher.Constraint("DistanceX", 0, 3, -1, 1, 95.0),
    Sketcher.Constraint("DistanceY", -1, 1, 0, 3, 156.0),
])
pocket41 = body.newObject("PartDesign::Pocket", "Pocket040")
pocket41.Profile = sketch42
pocket41.Type = "ThroughAll"

# Sketch on XZ plane
sketch43 = body.newObject("Sketcher::SketchObject", "Sketch042")
sketch43.AttachmentSupport = (doc.getObject("XZ_Plane"), [""])
sketch43.MapMode = "FlatFace"
sketch43.addGeometry(Part.Circle(App.Vector(-65, 156, 0), App.Vector(0, 0, 1), 1.8), False)
sketch43.addConstraint([
    Sketcher.Constraint("Diameter", 0, 3.6),
    Sketcher.Constraint("DistanceX", 0, 3, -1, 1, 65.0),
    Sketcher.Constraint("DistanceY", -1, 1, 0, 3, 156.0),
])
pocket42 = body.newObject("PartDesign::Pocket", "Pocket041")
pocket42.Profile = sketch43
pocket42.Type = "ThroughAll"

# Sketch on XZ plane
sketch44 = body.newObject("Sketcher::SketchObject", "Sketch043")
sketch44.AttachmentSupport = (doc.getObject("XZ_Plane"), [""])
sketch44.MapMode = "FlatFace"
sketch44.addGeometry(Part.Circle(App.Vector(-95, 180, 0), App.Vector(0, 0, 1), 1.8), False)
sketch44.addConstraint([
    Sketcher.Constraint("Diameter", 0, 3.6),
    Sketcher.Constraint("DistanceX", 0, 3, -1, 1, 95.0),
    Sketcher.Constraint("DistanceY", -1, 1, 0, 3, 180.0),
])
pocket43 = body.newObject("PartDesign::Pocket", "Pocket042")
pocket43.Profile = sketch44
pocket43.Type = "ThroughAll"

# Sketch on XZ plane
sketch45 = body.newObject("Sketcher::SketchObject", "Sketch044")
sketch45.AttachmentSupport = (doc.getObject("XZ_Plane"), [""])
sketch45.MapMode = "FlatFace"
sketch45.addGeometry(Part.Circle(App.Vector(-65, 180, 0), App.Vector(0, 0, 1), 1.8), False)
sketch45.addConstraint([
    Sketcher.Constraint("Diameter", 0, 3.6),
    Sketcher.Constraint("DistanceX", 0, 3, -1, 1, 65.0),
    Sketcher.Constraint("DistanceY", -1, 1, 0, 3, 180.0),
])
pocket44 = body.newObject("PartDesign::Pocket", "Pocket043")
pocket44.Profile = sketch45
pocket44.Type = "ThroughAll"

# Sketch on XZ plane
sketch46 = body.newObject("Sketcher::SketchObject", "Sketch045")
sketch46.AttachmentSupport = (doc.getObject("XZ_Plane"), [""])
sketch46.MapMode = "FlatFace"
sketch46.addGeometry(Part.Circle(App.Vector(-65, -156, 0), App.Vector(0, 0, 1), 1.8), False)
sketch46.addConstraint([
    Sketcher.Constraint("Diameter", 0, 3.6),
    Sketcher.Constraint("DistanceX", 0, 3, -1, 1, 65.0),
    Sketcher.Constraint("DistanceY", 0, 3, -1, 1, 156.0),
])
pocket45 = body.newObject("PartDesign::Pocket", "Pocket044")
pocket45.Profile = sketch46
pocket45.Type = "ThroughAll"

# Sketch on XZ plane
sketch47 = body.newObject("Sketcher::SketchObject", "Sketch046")
sketch47.AttachmentSupport = (doc.getObject("XZ_Plane"), [""])
sketch47.MapMode = "FlatFace"
sketch47.addGeometry(Part.Circle(App.Vector(-65, -180, 0), App.Vector(0, 0, 1), 1.8), False)
sketch47.addConstraint([
    Sketcher.Constraint("Diameter", 0, 3.6),
    Sketcher.Constraint("DistanceX", 0, 3, -1, 1, 65.0),
    Sketcher.Constraint("DistanceY", 0, 3, -1, 1, 180.0),
])
pocket46 = body.newObject("PartDesign::Pocket", "Pocket045")
pocket46.Profile = sketch47
pocket46.Type = "ThroughAll"

# Sketch on XZ plane
sketch48 = body.newObject("Sketcher::SketchObject", "Sketch047")
sketch48.AttachmentSupport = (doc.getObject("XZ_Plane"), [""])
sketch48.MapMode = "FlatFace"
sketch48.addGeometry(Part.Circle(App.Vector(-95, -156, 0), App.Vector(0, 0, 1), 1.8), False)
sketch48.addConstraint([
    Sketcher.Constraint("Diameter", 0, 3.6),
    Sketcher.Constraint("DistanceX", 0, 3, -1, 1, 95.0),
    Sketcher.Constraint("DistanceY", 0, 3, -1, 1, 156.0),
])
pocket47 = body.newObject("PartDesign::Pocket", "Pocket046")
pocket47.Profile = sketch48
pocket47.Type = "ThroughAll"

# Sketch on XZ plane
sketch49 = body.newObject("Sketcher::SketchObject", "Sketch048")
sketch49.AttachmentSupport = (doc.getObject("XZ_Plane"), [""])
sketch49.MapMode = "FlatFace"
sketch49.addGeometry(Part.Circle(App.Vector(-95, -180, 0), App.Vector(0, 0, 1), 1.8), False)
sketch49.addConstraint([
    Sketcher.Constraint("Diameter", 0, 3.6),
    Sketcher.Constraint("DistanceX", 0, 3, -1, 1, 95.0),
    Sketcher.Constraint("DistanceY", 0, 3, -1, 1, 180.0),
])
pocket48 = body.newObject("PartDesign::Pocket", "Pocket047")
pocket48.Profile = sketch49
pocket48.Type = "ThroughAll"

doc.recompute()
